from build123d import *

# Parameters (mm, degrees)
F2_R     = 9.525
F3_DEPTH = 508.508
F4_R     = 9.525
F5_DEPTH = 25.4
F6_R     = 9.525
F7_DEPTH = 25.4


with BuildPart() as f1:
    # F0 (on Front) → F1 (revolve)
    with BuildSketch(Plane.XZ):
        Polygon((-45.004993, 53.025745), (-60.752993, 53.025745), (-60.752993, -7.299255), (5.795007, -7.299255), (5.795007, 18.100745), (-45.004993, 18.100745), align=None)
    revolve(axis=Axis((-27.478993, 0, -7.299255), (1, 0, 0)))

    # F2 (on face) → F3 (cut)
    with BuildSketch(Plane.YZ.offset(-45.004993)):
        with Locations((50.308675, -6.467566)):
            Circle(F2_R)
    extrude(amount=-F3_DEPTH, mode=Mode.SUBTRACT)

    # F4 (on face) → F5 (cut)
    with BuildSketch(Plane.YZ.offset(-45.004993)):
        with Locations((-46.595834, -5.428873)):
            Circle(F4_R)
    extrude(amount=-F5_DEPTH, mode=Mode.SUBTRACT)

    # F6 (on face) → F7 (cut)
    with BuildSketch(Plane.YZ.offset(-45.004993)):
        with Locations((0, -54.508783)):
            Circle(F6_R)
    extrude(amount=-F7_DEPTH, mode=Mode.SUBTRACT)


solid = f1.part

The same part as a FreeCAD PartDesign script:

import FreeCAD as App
import Part
import Sketcher

V = App.Vector
Q = App.Units.Quantity


def add_polygon(sketch, points):
    """Adds a closed chain of lines whose ends are joined by coincident constraints."""
    first, n = sketch.GeometryCount, len(points)
    for a, b in zip(points, points[1:] + points[:1]):
        sketch.addGeometry(Part.LineSegment(App.Vector(*a, 0), App.Vector(*b, 0)), False)
    for i in range(n):
        sketch.addConstraint(Sketcher.Constraint("Coincident", first + i, 2, first + (i + 1) % n, 1))

doc = App.newDocument("Part")
body = doc.addObject("PartDesign::Body", "Body")

# Sketch on XZ plane
sketch1 = body.newObject("Sketcher::SketchObject", "Sketch")
sketch1.AttachmentSupport = (doc.getObject("XZ_Plane"), [""])
sketch1.MapMode = "FlatFace"
add_polygon(sketch1, [(-45, 53), (-61, 53), (-61, -7), (6, -7), (6, 18), (-45, 18)])  # lines 0-5
sketch1.addGeometry(Part.LineSegment(V(-61, -7, 0), V(6, -7, 0)), True)  # axis
sketch1.addConstraint(Sketcher.Constraint("Horizontal", 0))
sketch1.addConstraint(Sketcher.Constraint("Vertical", 1))
sketch1.addConstraint(Sketcher.Constraint("Horizontal", 2))
sketch1.addConstraint(Sketcher.Constraint("Vertical", 3))
sketch1.addConstraint(Sketcher.Constraint("Horizontal", 4))
sketch1.addConstraint(Sketcher.Constraint("Vertical", 5))
sketch1.addConstraint(Sketcher.Constraint("Horizontal", 6))
sketch1.addConstraint(Sketcher.Constraint("Coincident", 6, 1, 1, 2))
sketch1.addConstraint(Sketcher.Constraint("Vertical", 3, 2, 6, 2))
sketch1.addConstraint(Sketcher.Constraint("DistanceX", 4, 2, 4, 1, Q("2 in")))
sketch1.addConstraint(Sketcher.Constraint("DistanceY", 3, 1, 3, 2, Q("1 in")))
sketch1.addConstraint(Sketcher.Constraint("DistanceX", 0, 2, 0, 1, Q("0.62 in")))
sketch1.addConstraint(Sketcher.Constraint("DistanceY", 1, 2, 1, 1, Q("2.375 in")))
sketch1.addConstraint(Sketcher.Constraint("DistanceX", 0, 2, -1, 1, 60.752993))
sketch1.addConstraint(Sketcher.Constraint("DistanceY", -1, 1, 0, 2, 53.025745))
revolution = body.newObject("PartDesign::Revolution", "Revolution")
revolution.Profile = sketch1
revolution.ReferenceAxis = (sketch1, ["Axis0"])
revolution.Angle = 360

# Sketch on YZ plane
sketch2 = body.newObject("Sketcher::SketchObject", "Sketch001")
sketch2.AttachmentSupport = (doc.getObject("YZ_Plane"), [""])
sketch2.MapMode = "FlatFace"
sketch2.AttachmentOffset = App.Placement(V(0, 0, -45.004993), App.Rotation())
sketch2.addGeometry(Part.Circle(V(50, -6, 0), V(0, 0, 1), 10), False)
sketch2.addConstraint(Sketcher.Constraint("Diameter", 0, Q("0.75 in")))
sketch2.addConstraint(Sketcher.Constraint("DistanceX", -1, 1, 0, 3, 50.308675))
sketch2.addConstraint(Sketcher.Constraint("DistanceY", 0, 3, -1, 1, 6.467566))
pocket1 = body.newObject("PartDesign::Pocket", "Pocket")
pocket1.Profile = sketch2
pocket1.Length = Q("20.02 in")

# Sketch on YZ plane
sketch3 = body.newObject("Sketcher::SketchObject", "Sketch002")
sketch3.AttachmentSupport = (doc.getObject("YZ_Plane"), [""])
sketch3.MapMode = "FlatFace"
sketch3.AttachmentOffset = App.Placement(V(0, 0, -45.004993), App.Rotation())
sketch3.addGeometry(Part.Circle(V(-47, -5, 0), V(0, 0, 1), 10), False)
sketch3.addConstraint(Sketcher.Constraint("Diameter", 0, Q("0.75 in")))
sketch3.addConstraint(Sketcher.Constraint("DistanceX", 0, 3, -1, 1, 46.595834))
sketch3.addConstraint(Sketcher.Constraint("DistanceY", 0, 3, -1, 1, 5.428873))
pocket2 = body.newObject("PartDesign::Pocket", "Pocket001")
pocket2.Profile = sketch3
pocket2.Length = Q("1 in")

# Sketch on YZ plane
sketch4 = body.newObject("Sketcher::SketchObject", "Sketch003")
sketch4.AttachmentSupport = (doc.getObject("YZ_Plane"), [""])
sketch4.MapMode = "FlatFace"
sketch4.AttachmentOffset = App.Placement(V(0, 0, -45.004993), App.Rotation())
sketch4.addGeometry(Part.Circle(V(0, -55, 0), V(0, 0, 1), 10), False)
sketch4.addConstraint(Sketcher.Constraint("PointOnObject", 0, 3, -2))
sketch4.addConstraint(Sketcher.Constraint("Diameter", 0, Q("0.75 in")))
sketch4.addConstraint(Sketcher.Constraint("DistanceY", 0, 3, -1, 1, 54.508783))
pocket3 = body.newObject("PartDesign::Pocket", "Pocket002")
pocket3.Profile = sketch4
pocket3.Length = Q("1 in")

doc.recompute()
